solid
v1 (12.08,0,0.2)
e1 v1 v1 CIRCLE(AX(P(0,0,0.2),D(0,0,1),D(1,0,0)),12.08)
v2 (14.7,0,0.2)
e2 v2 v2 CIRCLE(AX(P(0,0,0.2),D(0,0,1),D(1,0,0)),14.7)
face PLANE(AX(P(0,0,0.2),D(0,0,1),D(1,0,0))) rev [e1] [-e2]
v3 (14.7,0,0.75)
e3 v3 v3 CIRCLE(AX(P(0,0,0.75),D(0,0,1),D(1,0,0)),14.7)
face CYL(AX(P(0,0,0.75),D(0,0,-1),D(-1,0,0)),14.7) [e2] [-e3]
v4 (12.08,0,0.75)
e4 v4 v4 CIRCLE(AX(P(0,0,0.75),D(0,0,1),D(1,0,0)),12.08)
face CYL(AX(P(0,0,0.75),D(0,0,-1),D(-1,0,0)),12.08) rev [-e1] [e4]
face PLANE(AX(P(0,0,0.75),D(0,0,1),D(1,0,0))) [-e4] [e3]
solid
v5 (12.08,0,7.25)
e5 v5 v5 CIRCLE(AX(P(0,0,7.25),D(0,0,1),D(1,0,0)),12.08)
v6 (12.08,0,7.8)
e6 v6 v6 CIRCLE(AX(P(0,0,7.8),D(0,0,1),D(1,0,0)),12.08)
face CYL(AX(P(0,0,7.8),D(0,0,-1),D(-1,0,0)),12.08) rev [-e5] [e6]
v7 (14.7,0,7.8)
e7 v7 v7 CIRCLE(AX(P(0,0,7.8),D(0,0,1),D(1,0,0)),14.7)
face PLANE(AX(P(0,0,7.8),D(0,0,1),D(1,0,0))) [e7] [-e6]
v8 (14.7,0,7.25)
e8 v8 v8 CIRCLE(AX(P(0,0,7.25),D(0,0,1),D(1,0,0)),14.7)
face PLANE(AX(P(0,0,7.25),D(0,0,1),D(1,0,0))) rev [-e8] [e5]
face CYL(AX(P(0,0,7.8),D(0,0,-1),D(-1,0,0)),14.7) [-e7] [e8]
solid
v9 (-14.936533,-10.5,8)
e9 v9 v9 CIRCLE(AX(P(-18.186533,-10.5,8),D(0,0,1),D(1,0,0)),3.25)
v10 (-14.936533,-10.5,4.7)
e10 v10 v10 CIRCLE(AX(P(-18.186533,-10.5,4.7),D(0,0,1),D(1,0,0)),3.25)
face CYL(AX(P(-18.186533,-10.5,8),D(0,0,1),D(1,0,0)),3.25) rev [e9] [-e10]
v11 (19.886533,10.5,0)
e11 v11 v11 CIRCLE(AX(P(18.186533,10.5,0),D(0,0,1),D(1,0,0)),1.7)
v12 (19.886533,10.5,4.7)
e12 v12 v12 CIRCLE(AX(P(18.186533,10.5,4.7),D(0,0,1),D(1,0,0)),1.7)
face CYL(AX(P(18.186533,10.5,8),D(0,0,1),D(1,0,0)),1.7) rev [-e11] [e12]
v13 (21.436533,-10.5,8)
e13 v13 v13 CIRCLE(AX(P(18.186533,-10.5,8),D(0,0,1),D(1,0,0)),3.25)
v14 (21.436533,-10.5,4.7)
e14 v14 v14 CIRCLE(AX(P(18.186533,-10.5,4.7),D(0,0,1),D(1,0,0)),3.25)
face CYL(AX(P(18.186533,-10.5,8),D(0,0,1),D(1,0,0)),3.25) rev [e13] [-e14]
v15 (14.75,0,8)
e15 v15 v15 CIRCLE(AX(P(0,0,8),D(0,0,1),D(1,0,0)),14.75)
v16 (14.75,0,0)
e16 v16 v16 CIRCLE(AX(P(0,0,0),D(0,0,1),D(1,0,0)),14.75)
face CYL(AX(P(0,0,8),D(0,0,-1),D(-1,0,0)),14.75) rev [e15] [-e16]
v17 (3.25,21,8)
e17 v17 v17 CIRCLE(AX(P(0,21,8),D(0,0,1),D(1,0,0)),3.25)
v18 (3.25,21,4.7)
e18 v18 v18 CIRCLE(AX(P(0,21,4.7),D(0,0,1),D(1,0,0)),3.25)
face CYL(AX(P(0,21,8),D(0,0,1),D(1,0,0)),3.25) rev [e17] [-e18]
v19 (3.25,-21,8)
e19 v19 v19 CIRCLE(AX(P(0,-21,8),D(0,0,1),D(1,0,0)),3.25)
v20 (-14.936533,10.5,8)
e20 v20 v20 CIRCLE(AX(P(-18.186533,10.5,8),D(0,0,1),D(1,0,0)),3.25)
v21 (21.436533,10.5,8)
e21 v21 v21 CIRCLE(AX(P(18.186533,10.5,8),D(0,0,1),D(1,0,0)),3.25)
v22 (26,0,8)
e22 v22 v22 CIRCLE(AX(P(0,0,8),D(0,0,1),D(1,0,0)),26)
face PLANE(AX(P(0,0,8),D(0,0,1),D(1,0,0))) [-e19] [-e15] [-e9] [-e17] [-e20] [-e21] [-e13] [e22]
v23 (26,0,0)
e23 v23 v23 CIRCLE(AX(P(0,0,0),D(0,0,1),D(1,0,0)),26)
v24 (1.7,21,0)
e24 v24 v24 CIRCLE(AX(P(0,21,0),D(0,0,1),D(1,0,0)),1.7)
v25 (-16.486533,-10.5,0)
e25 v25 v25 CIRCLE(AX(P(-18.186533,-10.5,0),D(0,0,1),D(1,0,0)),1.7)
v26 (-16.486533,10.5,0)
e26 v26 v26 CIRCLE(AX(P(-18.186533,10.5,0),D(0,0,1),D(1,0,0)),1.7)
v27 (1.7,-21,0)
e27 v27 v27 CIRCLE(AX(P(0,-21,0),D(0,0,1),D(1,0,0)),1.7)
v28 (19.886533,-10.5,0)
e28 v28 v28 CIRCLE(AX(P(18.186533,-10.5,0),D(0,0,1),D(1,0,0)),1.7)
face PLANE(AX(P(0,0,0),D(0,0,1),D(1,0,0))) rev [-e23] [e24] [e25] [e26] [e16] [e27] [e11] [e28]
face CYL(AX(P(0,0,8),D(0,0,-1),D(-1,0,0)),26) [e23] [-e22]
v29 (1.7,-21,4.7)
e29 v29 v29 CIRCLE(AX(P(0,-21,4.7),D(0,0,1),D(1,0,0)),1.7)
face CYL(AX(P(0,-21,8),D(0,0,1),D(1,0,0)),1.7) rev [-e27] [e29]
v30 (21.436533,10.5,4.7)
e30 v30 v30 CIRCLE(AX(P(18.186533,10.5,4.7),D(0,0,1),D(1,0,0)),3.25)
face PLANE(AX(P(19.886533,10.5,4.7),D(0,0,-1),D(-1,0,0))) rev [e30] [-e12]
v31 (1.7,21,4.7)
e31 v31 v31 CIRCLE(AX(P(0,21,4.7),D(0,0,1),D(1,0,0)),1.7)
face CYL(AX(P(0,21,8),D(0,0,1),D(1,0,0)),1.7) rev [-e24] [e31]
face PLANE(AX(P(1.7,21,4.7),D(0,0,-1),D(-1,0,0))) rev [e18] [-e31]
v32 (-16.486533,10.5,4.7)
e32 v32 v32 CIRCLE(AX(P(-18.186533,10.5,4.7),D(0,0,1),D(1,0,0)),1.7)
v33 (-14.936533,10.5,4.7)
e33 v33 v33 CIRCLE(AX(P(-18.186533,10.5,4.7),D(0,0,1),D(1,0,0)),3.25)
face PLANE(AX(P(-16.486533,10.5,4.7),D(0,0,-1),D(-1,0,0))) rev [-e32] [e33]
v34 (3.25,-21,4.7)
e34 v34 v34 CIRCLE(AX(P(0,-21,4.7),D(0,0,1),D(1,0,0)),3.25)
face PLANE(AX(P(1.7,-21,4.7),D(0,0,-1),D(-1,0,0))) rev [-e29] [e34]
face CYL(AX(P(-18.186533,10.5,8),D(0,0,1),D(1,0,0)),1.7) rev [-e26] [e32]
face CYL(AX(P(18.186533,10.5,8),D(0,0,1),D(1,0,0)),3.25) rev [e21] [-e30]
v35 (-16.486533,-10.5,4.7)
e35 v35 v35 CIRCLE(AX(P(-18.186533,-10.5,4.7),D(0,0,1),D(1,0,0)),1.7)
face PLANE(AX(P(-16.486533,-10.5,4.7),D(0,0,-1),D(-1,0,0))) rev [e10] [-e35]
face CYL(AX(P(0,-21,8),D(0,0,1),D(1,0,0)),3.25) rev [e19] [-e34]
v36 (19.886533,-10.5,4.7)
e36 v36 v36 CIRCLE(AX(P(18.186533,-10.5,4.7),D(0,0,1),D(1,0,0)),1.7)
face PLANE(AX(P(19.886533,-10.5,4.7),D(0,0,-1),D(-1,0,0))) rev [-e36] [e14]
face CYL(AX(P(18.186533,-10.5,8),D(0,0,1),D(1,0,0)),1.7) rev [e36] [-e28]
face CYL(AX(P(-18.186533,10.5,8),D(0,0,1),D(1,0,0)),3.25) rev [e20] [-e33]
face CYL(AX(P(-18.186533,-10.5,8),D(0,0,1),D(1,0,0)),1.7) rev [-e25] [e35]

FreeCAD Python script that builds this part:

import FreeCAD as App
import Part
import Sketcher

V = App.Vector

doc = App.newDocument("Part")
body = doc.addObject("PartDesign::Body", "Body")

sketch1 = doc.addObject("Sketcher::SketchObject", "Sketch")
body.addObject(sketch1)
sketch1.AttachmentSupport = (doc.XY_Plane, [""])
sketch1.MapMode = "FlatFace"
sketch1.addGeometry([
    Part.Circle(V(0, 0, 0), V(0, 0, 1), 26),
    Part.Circle(V(0, 0, 0), V(0, 0, 1), 15),
], False)
sketch1.addConstraint([
    Sketcher.Constraint("Coincident", 0, 3, -1, 1),
    Sketcher.Constraint("Coincident", 1, 3, -1, 1),
    Sketcher.Constraint("Diameter", 0, 52.0),
    Sketcher.Constraint("Diameter", 1, 29.5),
])
pad1 = doc.addObject("PartDesign::Pad", "Pad")
body.addObject(pad1)
pad1.Profile = sketch1
pad1.Length = 8

sketch2 = doc.addObject("Sketcher::SketchObject", "Sketch001")
body.addObject(sketch2)
sketch2.AttachmentSupport = (doc.YZ_Plane, [""])
sketch2.MapMode = "FlatFace"
sketch2.AttachmentOffset = App.Placement(V(0, 0, 18.186533), App.Rotation())
sketch2.addGeometry([
    Part.LineSegment(V(10.5, 0, 0), V(10.5, 8, 0)),
    Part.LineSegment(V(10.5, 8, 0), V(7.2, 8, 0)),
    Part.LineSegment(V(7.2, 8, 0), V(7.2, 4.7, 0)),
    Part.LineSegment(V(7.2, 4.7, 0), V(8.8, 4.7, 0)),
    Part.LineSegment(V(8.8, 4.7, 0), V(8.8, 0, 0)),
    Part.LineSegment(V(8.8, 0, 0), V(10.5, 0, 0)),
], False)
sketch2.addGeometry(Part.LineSegment(V(10.5, 8, 0), V(10.5, 0, 0)), True)
sketch2.addConstraint([
    Sketcher.Constraint("Coincident", 0, 2, 1, 1),
    Sketcher.Constraint("Coincident", 1, 2, 2, 1),
    Sketcher.Constraint("Coincident", 2, 2, 3, 1),
    Sketcher.Constraint("Coincident", 3, 2, 4, 1),
    Sketcher.Constraint("Coincident", 4, 2, 5, 1),
    Sketcher.Constraint("Coincident", 5, 2, 0, 1),
    Sketcher.Constraint("Vertical", 0),
    Sketcher.Constraint("Horizontal", 1),
    Sketcher.Constraint("Vertical", 2),
    Sketcher.Constraint("Horizontal", 3),
    Sketcher.Constraint("Vertical", 4),
    Sketcher.Constraint("Horizontal", 5),
    Sketcher.Constraint("Vertical", 6),
    Sketcher.Constraint("Coincident", 6, 1, 0, 2),
    Sketcher.Constraint("PointOnObject", 4, 2, -1),
    Sketcher.Constraint("PointOnObject", 6, 2, -1),
    Sketcher.Constraint("DistanceY", 0, 1, 0, 2, 8.0),
    Sketcher.Constraint("DistanceX", 5, 1, 5, 2, 1.7),
    Sketcher.Constraint("DistanceY", 2, 2, 2, 1, 3.3),
    Sketcher.Constraint("DistanceX", 1, 2, 1, 1, 3.25),
    Sketcher.Constraint("DistanceX", -1, 1, 0, 2, 10.5),
])
groove = doc.addObject("PartDesign::Groove", "Groove")
body.addObject(groove)
groove.Profile = sketch2
groove.ReferenceAxis = (sketch2, ["Axis0"])
groove.Angle = 360
doc.recompute()

linearpattern = doc.addObject("PartDesign::LinearPattern", "LinearPattern")
body.addObject(linearpattern)
linearpattern.Originals = [groove]
linearpattern.Direction = (doc.Y_Axis, [""])
linearpattern.Mode = "offset"
linearpattern.Offset = 21
linearpattern.Occurrences = 2
linearpattern.Reversed = True
body.Tip = linearpattern
doc.recompute()

datumline = doc.addObject("PartDesign::Line", "DatumLine")
body.addObject(datumline)
datumline.Placement = App.Placement(V(0, 0, 0), App.Rotation(V(0, 0, 1), V(-0.5, -0.866025404, 0)))
linearpattern2 = doc.addObject("PartDesign::LinearPattern", "LinearPattern001")
body.addObject(linearpattern2)
linearpattern2.Originals = [groove]
linearpattern2.Direction = (datumline, [""])
linearpattern2.Mode = "offset"
linearpattern2.Offset = 36.373067
linearpattern2.Occurrences = 2
body.Tip = linearpattern2
doc.recompute()

datumline2 = doc.addObject("PartDesign::Line", "DatumLine001")
body.addObject(datumline2)
datumline2.Placement = App.Placement(V(0, 0, 0), App.Rotation(V(0, 0, 1), V(-0.866025404, -0.5, 0)))
linearpattern3 = doc.addObject("PartDesign::LinearPattern", "LinearPattern002")
body.addObject(linearpattern3)
linearpattern3.Originals = [groove]
linearpattern3.Direction = (datumline2, [""])
linearpattern3.Mode = "offset"
linearpattern3.Offset = 42
linearpattern3.Occurrences = 2
body.Tip = linearpattern3
doc.recompute()

linearpattern4 = doc.addObject("PartDesign::LinearPattern", "LinearPattern003")
body.addObject(linearpattern4)
linearpattern4.Originals = [groove]
linearpattern4.Direction = (doc.X_Axis, [""])
linearpattern4.Mode = "offset"
linearpattern4.Offset = 36.373067
linearpattern4.Occurrences = 2
linearpattern4.Reversed = True
body.Tip = linearpattern4
doc.recompute()

datumline3 = doc.addObject("PartDesign::Line", "DatumLine002")
body.addObject(datumline3)
datumline3.Placement = App.Placement(V(0, 0, 0), App.Rotation(V(0, 0, 1), V(-0.866025404, 0.5, 0)))
linearpattern5 = doc.addObject("PartDesign::LinearPattern", "LinearPattern004")
body.addObject(linearpattern5)
linearpattern5.Originals = [groove]
linearpattern5.Direction = (datumline3, [""])
linearpattern5.Mode = "offset"
linearpattern5.Offset = 21
linearpattern5.Occurrences = 2
body.Tip = linearpattern5
body2 = doc.addObject("PartDesign::Body", "Body001")

sketch3 = doc.addObject("Sketcher::SketchObject", "Sketch002")
body2.addObject(sketch3)
sketch3.AttachmentSupport = (doc.getObject("XY_Plane001"), [""])
sketch3.MapMode = "FlatFace"
sketch3.addGeometry([
    Part.Circle(V(0, 0, 0), V(0, 0, 1), 12),
    Part.Circle(V(0, 0, 0), V(0, 0, 1), 5),
], False)
sketch3.addConstraint([
    Sketcher.Constraint("Coincident", 0, 3, -1, 1),
    Sketcher.Constraint("Coincident", 1, 3, -1, 1),
    Sketcher.Constraint("Diameter", 0, 24.0),
    Sketcher.Constraint("Diameter", 1, 10.0),
])
pad2 = doc.addObject("PartDesign::Pad", "Pad001")
body2.addObject(pad2)
pad2.Profile = sketch3
pad2.Length = 8

sketch4 = doc.addObject("Sketcher::SketchObject", "Sketch003")
body2.addObject(sketch4)
sketch4.AttachmentSupport = (doc.getObject("YZ_Plane001"), [""])
sketch4.MapMode = "FlatFace"
sketch4.AttachmentOffset = App.Placement(V(0, 0, 5.656854), App.Rotation())
sketch4.addGeometry([
    Part.LineSegment(V(-5.7, 0, 0), V(-5.7, 8, 0)),
    Part.LineSegment(V(-5.7, 8, 0), V(-6.9, 8, 0)),
    Part.LineSegment(V(-6.9, 8, 0), V(-6.9, 0, 0)),
    Part.LineSegment(V(-6.9, 0, 0), V(-5.7, 0, 0)),
], False)
sketch4.addGeometry(Part.LineSegment(V(-5.7, 8, 0), V(-5.7, 0, 0)), True)
sketch4.addConstraint([
    Sketcher.Constraint("Coincident", 0, 2, 1, 1),
    Sketcher.Constraint("Coincident", 1, 2, 2, 1),
    Sketcher.Constraint("Coincident", 2, 2, 3, 1),
    Sketcher.Constraint("Coincident", 3, 2, 0, 1),
    Sketcher.Constraint("Vertical", 0),
    Sketcher.Constraint("Horizontal", 1),
    Sketcher.Constraint("Vertical", 2),
    Sketcher.Constraint("Horizontal", 3),
    Sketcher.Constraint("Vertical", 4),
    Sketcher.Constraint("Coincident", 4, 1, 0, 2),
    Sketcher.Constraint("PointOnObject", 2, 2, -1),
    Sketcher.Constraint("PointOnObject", 4, 2, -1),
    Sketcher.Constraint("DistanceY", 0, 1, 0, 2, 8.0),
    Sketcher.Constraint("DistanceX", 1, 2, 1, 1, 1.25),
    Sketcher.Constraint("DistanceX", 0, 2, -1, 1, 5.656854),
])
groove2 = doc.addObject("PartDesign::Groove", "Groove001")
body2.addObject(groove2)
groove2.Profile = sketch4
groove2.ReferenceAxis = (sketch4, ["Axis0"])
groove2.Angle = 360
doc.recompute()

linearpattern6 = doc.addObject("PartDesign::LinearPattern", "LinearPattern005")
body2.addObject(linearpattern6)
linearpattern6.Originals = [groove2]
linearpattern6.Direction = (doc.getObject("X_Axis001"), [""])
linearpattern6.Mode = "offset"
linearpattern6.Offset = 11.313708
linearpattern6.Occurrences = 2
linearpattern6.Reversed = True
body2.Tip = linearpattern6
doc.recompute()

datumline4 = doc.addObject("PartDesign::Line", "DatumLine003")
body2.addObject(datumline4)
datumline4.Placement = App.Placement(V(0, 0, 0), App.Rotation(V(0, 0, 1), V(-0.707106781, 0.707106781, 0)))
linearpattern7 = doc.addObject("PartDesign::LinearPattern", "LinearPattern006")
body2.addObject(linearpattern7)
linearpattern7.Originals = [groove2]
linearpattern7.Direction = (datumline4, [""])
linearpattern7.Mode = "offset"
linearpattern7.Offset = 16
linearpattern7.Occurrences = 2
body2.Tip = linearpattern7
doc.recompute()

linearpattern8 = doc.addObject("PartDesign::LinearPattern", "LinearPattern007")
body2.addObject(linearpattern8)
linearpattern8.Originals = [groove2]
linearpattern8.Direction = (doc.getObject("Y_Axis001"), [""])
linearpattern8.Mode = "offset"
linearpattern8.Offset = 11.313708
linearpattern8.Occurrences = 2
body2.Tip = linearpattern8
body3 = doc.addObject("PartDesign::Body", "Body002")

sketch5 = doc.addObject("Sketcher::SketchObject", "Sketch004")
body3.addObject(sketch5)
sketch5.AttachmentSupport = (doc.getObject("XY_Plane002"), [""])
sketch5.MapMode = "FlatFace"
sketch5.AttachmentOffset = App.Placement(V(0, 0, 7.25), App.Rotation())
sketch5.addGeometry([
    Part.Circle(V(0, 0, 0), V(0, 0, 1), 15),
    Part.Circle(V(0, 0, 0), V(0, 0, 1), 12),
], False)
sketch5.addConstraint([
    Sketcher.Constraint("Coincident", 0, 3, -1, 1),
    Sketcher.Constraint("Coincident", 1, 3, -1, 1),
    Sketcher.Constraint("Diameter", 0, 29.4),
    Sketcher.Constraint("Diameter", 1, 24.16),
])
pad3 = doc.addObject("PartDesign::Pad", "Pad002")
body3.addObject(pad3)
pad3.Profile = sketch5
pad3.Length = 0.55
body4 = doc.addObject("PartDesign::Body", "Body003")

sketch6 = doc.addObject("Sketcher::SketchObject", "Sketch005")
body4.addObject(sketch6)
sketch6.AttachmentSupport = (doc.getObject("XY_Plane003"), [""])
sketch6.MapMode = "FlatFace"
sketch6.AttachmentOffset = App.Placement(V(0, 0, 0.2), App.Rotation())
sketch6.addGeometry([
    Part.Circle(V(0, 0, 0), V(0, 0, 1), 15),
    Part.Circle(V(0, 0, 0), V(0, 0, 1), 12),
], False)
sketch6.addConstraint([
    Sketcher.Constraint("Coincident", 0, 3, -1, 1),
    Sketcher.Constraint("Coincident", 1, 3, -1, 1),
    Sketcher.Constraint("Diameter", 0, 29.4),
    Sketcher.Constraint("Diameter", 1, 24.16),
])
pad4 = doc.addObject("PartDesign::Pad", "Pad003")
body4.addObject(pad4)
pad4.Profile = sketch6
pad4.Length = 0.55
body2.Visibility = False

doc.recompute()
